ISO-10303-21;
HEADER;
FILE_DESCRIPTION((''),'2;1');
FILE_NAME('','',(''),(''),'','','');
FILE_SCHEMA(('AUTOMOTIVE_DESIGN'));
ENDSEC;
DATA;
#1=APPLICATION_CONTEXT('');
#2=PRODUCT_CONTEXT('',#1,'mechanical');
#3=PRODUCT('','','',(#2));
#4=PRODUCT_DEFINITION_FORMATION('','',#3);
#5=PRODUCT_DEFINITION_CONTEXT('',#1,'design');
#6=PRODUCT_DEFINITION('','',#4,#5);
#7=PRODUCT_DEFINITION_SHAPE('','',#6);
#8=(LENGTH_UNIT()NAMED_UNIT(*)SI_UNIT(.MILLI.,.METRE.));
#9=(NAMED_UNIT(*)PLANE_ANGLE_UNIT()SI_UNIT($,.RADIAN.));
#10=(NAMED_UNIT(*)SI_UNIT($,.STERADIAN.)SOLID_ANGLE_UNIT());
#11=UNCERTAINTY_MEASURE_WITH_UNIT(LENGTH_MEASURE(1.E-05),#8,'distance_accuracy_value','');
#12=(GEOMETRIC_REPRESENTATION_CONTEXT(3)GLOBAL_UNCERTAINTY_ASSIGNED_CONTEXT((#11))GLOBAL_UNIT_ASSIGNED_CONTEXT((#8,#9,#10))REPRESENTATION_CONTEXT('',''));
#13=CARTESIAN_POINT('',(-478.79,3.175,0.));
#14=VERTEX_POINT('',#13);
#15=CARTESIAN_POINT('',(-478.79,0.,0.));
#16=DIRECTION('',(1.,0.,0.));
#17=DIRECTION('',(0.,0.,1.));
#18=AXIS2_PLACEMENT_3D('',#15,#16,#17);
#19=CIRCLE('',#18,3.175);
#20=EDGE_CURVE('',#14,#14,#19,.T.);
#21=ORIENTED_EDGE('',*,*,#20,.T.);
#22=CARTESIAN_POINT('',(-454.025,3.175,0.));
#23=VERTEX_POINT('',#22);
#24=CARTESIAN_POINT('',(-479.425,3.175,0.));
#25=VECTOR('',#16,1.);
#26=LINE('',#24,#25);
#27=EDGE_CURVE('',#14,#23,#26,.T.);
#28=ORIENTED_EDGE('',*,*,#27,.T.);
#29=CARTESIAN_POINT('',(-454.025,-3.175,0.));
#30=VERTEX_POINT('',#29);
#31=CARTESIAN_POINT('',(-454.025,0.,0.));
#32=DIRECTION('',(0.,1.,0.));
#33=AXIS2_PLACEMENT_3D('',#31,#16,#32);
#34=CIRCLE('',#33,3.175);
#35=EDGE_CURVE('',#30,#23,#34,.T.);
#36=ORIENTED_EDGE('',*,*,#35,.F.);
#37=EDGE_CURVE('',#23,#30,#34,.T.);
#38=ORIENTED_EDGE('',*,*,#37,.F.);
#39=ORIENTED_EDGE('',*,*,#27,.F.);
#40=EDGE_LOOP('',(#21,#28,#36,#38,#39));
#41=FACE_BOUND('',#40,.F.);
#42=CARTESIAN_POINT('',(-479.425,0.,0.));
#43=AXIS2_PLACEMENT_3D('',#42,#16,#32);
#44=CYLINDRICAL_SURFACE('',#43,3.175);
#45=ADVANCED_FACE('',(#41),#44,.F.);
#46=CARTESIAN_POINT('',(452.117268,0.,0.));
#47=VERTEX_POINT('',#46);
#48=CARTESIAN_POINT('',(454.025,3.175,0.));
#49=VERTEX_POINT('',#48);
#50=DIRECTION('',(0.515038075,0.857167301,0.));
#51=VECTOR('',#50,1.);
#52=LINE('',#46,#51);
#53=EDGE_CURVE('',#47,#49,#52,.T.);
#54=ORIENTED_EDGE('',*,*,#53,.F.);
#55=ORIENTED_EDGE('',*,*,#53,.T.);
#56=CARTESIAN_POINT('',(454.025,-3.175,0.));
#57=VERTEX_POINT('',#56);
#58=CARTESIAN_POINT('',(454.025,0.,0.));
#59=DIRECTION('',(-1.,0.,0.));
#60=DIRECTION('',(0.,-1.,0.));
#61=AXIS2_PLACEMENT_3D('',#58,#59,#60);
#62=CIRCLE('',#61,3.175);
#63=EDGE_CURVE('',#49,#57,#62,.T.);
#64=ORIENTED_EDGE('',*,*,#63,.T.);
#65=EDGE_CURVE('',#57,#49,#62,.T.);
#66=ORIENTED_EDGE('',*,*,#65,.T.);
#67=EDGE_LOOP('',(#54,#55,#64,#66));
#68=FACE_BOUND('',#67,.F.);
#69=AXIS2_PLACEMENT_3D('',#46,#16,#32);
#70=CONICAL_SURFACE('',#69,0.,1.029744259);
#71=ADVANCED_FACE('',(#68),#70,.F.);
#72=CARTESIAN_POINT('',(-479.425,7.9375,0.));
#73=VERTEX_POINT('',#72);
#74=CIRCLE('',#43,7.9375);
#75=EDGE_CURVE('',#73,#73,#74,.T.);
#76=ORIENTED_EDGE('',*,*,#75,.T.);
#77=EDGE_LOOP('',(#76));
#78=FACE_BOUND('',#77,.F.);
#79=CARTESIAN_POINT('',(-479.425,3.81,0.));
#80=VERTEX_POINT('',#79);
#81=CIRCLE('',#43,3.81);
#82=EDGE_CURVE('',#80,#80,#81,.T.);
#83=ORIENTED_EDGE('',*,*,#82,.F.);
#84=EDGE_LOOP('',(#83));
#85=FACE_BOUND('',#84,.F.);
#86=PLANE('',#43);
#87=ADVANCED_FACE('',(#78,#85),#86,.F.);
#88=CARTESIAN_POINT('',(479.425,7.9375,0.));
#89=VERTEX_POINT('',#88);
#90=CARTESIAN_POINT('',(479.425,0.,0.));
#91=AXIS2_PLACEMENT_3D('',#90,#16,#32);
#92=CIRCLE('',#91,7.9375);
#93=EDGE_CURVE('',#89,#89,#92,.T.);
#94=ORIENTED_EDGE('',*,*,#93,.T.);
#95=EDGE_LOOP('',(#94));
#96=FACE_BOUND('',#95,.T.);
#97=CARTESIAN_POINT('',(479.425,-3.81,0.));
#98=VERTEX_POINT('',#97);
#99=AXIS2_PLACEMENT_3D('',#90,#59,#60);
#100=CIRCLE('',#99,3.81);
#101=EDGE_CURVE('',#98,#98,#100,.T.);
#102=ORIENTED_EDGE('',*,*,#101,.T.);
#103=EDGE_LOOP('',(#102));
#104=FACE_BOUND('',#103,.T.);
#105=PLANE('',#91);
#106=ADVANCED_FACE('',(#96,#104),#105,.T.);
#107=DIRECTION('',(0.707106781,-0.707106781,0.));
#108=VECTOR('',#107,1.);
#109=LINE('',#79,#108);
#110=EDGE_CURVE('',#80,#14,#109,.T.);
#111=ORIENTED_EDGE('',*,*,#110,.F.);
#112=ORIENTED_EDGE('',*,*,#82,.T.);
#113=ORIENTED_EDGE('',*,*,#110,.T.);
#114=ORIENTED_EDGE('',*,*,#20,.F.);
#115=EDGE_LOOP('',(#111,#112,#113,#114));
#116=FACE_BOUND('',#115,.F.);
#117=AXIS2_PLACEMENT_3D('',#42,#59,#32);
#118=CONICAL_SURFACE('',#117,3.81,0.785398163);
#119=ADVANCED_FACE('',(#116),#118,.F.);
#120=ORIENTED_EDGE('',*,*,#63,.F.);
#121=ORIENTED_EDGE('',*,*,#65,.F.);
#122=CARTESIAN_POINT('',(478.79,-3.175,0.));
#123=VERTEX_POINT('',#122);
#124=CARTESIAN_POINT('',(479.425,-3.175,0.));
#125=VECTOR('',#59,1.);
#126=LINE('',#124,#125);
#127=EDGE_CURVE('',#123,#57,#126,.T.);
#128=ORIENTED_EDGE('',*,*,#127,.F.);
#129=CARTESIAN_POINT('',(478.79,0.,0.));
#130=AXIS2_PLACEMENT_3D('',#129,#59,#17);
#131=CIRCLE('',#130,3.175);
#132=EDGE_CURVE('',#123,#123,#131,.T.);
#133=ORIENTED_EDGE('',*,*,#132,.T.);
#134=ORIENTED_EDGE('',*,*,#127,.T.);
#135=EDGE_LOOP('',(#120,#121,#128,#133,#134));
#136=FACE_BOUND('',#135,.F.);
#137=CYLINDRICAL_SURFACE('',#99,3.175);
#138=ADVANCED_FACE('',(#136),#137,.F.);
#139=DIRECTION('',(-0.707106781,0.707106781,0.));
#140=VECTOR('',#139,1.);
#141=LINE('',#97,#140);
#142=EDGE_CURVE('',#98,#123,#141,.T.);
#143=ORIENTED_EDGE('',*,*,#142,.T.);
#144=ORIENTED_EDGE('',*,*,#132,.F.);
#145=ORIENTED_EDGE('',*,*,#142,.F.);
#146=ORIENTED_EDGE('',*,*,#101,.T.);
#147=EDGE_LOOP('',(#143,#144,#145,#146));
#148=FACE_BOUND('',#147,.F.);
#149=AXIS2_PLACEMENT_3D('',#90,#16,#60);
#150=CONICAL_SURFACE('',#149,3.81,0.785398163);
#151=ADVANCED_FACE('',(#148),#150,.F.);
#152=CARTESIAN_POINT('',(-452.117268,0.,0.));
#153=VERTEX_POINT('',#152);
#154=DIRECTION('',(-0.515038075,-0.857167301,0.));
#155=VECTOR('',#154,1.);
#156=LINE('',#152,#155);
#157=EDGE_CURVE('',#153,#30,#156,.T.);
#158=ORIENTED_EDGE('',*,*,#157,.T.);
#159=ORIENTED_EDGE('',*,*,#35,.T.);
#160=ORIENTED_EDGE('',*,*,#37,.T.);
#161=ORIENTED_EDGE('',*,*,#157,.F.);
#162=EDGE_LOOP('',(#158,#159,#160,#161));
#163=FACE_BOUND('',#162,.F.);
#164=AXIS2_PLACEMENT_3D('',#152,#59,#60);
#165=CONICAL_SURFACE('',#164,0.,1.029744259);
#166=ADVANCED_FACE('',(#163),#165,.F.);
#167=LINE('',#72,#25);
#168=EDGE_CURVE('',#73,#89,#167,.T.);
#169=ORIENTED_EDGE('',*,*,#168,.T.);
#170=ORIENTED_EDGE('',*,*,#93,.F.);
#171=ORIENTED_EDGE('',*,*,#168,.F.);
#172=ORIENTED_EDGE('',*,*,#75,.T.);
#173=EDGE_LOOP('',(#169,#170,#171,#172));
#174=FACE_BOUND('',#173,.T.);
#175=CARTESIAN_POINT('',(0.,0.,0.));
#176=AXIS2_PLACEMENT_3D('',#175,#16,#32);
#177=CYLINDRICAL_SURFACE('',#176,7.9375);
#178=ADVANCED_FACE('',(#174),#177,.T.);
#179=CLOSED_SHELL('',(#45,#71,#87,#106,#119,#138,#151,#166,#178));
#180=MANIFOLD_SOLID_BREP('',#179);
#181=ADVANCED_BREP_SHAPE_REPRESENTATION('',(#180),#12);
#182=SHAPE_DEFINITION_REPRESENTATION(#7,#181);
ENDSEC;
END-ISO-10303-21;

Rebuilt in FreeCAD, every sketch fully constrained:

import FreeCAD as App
import Part
import Sketcher

V = App.Vector
Q = App.Units.Quantity

doc = App.newDocument("Part")
body = doc.addObject("PartDesign::Body", "Body")

sketch1 = doc.addObject("Sketcher::SketchObject", "Sketch")
body.addObject(sketch1)
sketch1.AttachmentSupport = (doc.YZ_Plane, [""])
sketch1.MapMode = "FlatFace"
sketch1.addGeometry(Part.Circle(V(0, 0, 0), V(0, 0, 1), 8), False)
sketch1.addConstraint([
    Sketcher.Constraint("Coincident", 0, 3, -1, 1),
    Sketcher.Constraint("Diameter", 0, Q("0.625 in")),
])
pad1 = doc.addObject("PartDesign::Pad", "Pad")
body.addObject(pad1)
pad1.Profile = sketch1
pad1.Length = Q("37.75 in")
pad1.Midplane = True

sketch2 = doc.addObject("Sketcher::SketchObject", "Sketch001")
body.addObject(sketch2)
sketch2.AttachmentSupport = (doc.YZ_Plane, [""])
sketch2.MapMode = "FlatFace"
sketch2.AttachmentOffset = App.Placement(V(0, 0, -18.875 * 25.4), App.Rotation())
sketch2.addGeometry(Part.Circle(V(0, 0, 0), V(0, 0, 1), 3.2), False)
sketch2.addConstraint([
    Sketcher.Constraint("Coincident", 0, 3, -1, 1),
    Sketcher.Constraint("Diameter", 0, Q("0.25 in")),
])
doc.recompute()
hole = doc.addObject("PartDesign::Hole", "Hole")
body.addObject(hole)
hole.Profile = sketch2
hole.ThreadType = "None"
hole.Diameter = Q("0.25 in")
hole.DepthType = "Dimension"
hole.Depth = Q("1 in")
hole.DrillPoint = "Angled"
hole.DrillPointAngle = 118
hole.HoleCutType = "Countersink"
hole.HoleCutDiameter = Q("0.3 in")
hole.HoleCutCountersinkAngle = 90
hole.Reversed = True

sketch3 = doc.addObject("Sketcher::SketchObject", "Sketch002")
body.addObject(sketch3)
sketch3.AttachmentSupport = (doc.YZ_Plane, [""])
sketch3.MapMode = "FlatFace"
sketch3.AttachmentOffset = App.Placement(V(0, 0, 18.875 * 25.4), App.Rotation())
sketch3.addGeometry(Part.Circle(V(0, 0, 0), V(0, 0, 1), 3.2), False)
sketch3.addConstraint([
    Sketcher.Constraint("Coincident", 0, 3, -1, 1),
    Sketcher.Constraint("Diameter", 0, Q("0.25 in")),
])
doc.recompute()
hole2 = doc.addObject("PartDesign::Hole", "Hole001")
body.addObject(hole2)
hole2.Profile = sketch3
hole2.ThreadType = "None"
hole2.Diameter = Q("0.25 in")
hole2.DepthType = "Dimension"
hole2.Depth = Q("1 in")
hole2.DrillPoint = "Angled"
hole2.DrillPointAngle = 118
hole2.HoleCutType = "Countersink"
hole2.HoleCutDiameter = Q("0.3 in")
hole2.HoleCutCountersinkAngle = 90

doc.recompute()
